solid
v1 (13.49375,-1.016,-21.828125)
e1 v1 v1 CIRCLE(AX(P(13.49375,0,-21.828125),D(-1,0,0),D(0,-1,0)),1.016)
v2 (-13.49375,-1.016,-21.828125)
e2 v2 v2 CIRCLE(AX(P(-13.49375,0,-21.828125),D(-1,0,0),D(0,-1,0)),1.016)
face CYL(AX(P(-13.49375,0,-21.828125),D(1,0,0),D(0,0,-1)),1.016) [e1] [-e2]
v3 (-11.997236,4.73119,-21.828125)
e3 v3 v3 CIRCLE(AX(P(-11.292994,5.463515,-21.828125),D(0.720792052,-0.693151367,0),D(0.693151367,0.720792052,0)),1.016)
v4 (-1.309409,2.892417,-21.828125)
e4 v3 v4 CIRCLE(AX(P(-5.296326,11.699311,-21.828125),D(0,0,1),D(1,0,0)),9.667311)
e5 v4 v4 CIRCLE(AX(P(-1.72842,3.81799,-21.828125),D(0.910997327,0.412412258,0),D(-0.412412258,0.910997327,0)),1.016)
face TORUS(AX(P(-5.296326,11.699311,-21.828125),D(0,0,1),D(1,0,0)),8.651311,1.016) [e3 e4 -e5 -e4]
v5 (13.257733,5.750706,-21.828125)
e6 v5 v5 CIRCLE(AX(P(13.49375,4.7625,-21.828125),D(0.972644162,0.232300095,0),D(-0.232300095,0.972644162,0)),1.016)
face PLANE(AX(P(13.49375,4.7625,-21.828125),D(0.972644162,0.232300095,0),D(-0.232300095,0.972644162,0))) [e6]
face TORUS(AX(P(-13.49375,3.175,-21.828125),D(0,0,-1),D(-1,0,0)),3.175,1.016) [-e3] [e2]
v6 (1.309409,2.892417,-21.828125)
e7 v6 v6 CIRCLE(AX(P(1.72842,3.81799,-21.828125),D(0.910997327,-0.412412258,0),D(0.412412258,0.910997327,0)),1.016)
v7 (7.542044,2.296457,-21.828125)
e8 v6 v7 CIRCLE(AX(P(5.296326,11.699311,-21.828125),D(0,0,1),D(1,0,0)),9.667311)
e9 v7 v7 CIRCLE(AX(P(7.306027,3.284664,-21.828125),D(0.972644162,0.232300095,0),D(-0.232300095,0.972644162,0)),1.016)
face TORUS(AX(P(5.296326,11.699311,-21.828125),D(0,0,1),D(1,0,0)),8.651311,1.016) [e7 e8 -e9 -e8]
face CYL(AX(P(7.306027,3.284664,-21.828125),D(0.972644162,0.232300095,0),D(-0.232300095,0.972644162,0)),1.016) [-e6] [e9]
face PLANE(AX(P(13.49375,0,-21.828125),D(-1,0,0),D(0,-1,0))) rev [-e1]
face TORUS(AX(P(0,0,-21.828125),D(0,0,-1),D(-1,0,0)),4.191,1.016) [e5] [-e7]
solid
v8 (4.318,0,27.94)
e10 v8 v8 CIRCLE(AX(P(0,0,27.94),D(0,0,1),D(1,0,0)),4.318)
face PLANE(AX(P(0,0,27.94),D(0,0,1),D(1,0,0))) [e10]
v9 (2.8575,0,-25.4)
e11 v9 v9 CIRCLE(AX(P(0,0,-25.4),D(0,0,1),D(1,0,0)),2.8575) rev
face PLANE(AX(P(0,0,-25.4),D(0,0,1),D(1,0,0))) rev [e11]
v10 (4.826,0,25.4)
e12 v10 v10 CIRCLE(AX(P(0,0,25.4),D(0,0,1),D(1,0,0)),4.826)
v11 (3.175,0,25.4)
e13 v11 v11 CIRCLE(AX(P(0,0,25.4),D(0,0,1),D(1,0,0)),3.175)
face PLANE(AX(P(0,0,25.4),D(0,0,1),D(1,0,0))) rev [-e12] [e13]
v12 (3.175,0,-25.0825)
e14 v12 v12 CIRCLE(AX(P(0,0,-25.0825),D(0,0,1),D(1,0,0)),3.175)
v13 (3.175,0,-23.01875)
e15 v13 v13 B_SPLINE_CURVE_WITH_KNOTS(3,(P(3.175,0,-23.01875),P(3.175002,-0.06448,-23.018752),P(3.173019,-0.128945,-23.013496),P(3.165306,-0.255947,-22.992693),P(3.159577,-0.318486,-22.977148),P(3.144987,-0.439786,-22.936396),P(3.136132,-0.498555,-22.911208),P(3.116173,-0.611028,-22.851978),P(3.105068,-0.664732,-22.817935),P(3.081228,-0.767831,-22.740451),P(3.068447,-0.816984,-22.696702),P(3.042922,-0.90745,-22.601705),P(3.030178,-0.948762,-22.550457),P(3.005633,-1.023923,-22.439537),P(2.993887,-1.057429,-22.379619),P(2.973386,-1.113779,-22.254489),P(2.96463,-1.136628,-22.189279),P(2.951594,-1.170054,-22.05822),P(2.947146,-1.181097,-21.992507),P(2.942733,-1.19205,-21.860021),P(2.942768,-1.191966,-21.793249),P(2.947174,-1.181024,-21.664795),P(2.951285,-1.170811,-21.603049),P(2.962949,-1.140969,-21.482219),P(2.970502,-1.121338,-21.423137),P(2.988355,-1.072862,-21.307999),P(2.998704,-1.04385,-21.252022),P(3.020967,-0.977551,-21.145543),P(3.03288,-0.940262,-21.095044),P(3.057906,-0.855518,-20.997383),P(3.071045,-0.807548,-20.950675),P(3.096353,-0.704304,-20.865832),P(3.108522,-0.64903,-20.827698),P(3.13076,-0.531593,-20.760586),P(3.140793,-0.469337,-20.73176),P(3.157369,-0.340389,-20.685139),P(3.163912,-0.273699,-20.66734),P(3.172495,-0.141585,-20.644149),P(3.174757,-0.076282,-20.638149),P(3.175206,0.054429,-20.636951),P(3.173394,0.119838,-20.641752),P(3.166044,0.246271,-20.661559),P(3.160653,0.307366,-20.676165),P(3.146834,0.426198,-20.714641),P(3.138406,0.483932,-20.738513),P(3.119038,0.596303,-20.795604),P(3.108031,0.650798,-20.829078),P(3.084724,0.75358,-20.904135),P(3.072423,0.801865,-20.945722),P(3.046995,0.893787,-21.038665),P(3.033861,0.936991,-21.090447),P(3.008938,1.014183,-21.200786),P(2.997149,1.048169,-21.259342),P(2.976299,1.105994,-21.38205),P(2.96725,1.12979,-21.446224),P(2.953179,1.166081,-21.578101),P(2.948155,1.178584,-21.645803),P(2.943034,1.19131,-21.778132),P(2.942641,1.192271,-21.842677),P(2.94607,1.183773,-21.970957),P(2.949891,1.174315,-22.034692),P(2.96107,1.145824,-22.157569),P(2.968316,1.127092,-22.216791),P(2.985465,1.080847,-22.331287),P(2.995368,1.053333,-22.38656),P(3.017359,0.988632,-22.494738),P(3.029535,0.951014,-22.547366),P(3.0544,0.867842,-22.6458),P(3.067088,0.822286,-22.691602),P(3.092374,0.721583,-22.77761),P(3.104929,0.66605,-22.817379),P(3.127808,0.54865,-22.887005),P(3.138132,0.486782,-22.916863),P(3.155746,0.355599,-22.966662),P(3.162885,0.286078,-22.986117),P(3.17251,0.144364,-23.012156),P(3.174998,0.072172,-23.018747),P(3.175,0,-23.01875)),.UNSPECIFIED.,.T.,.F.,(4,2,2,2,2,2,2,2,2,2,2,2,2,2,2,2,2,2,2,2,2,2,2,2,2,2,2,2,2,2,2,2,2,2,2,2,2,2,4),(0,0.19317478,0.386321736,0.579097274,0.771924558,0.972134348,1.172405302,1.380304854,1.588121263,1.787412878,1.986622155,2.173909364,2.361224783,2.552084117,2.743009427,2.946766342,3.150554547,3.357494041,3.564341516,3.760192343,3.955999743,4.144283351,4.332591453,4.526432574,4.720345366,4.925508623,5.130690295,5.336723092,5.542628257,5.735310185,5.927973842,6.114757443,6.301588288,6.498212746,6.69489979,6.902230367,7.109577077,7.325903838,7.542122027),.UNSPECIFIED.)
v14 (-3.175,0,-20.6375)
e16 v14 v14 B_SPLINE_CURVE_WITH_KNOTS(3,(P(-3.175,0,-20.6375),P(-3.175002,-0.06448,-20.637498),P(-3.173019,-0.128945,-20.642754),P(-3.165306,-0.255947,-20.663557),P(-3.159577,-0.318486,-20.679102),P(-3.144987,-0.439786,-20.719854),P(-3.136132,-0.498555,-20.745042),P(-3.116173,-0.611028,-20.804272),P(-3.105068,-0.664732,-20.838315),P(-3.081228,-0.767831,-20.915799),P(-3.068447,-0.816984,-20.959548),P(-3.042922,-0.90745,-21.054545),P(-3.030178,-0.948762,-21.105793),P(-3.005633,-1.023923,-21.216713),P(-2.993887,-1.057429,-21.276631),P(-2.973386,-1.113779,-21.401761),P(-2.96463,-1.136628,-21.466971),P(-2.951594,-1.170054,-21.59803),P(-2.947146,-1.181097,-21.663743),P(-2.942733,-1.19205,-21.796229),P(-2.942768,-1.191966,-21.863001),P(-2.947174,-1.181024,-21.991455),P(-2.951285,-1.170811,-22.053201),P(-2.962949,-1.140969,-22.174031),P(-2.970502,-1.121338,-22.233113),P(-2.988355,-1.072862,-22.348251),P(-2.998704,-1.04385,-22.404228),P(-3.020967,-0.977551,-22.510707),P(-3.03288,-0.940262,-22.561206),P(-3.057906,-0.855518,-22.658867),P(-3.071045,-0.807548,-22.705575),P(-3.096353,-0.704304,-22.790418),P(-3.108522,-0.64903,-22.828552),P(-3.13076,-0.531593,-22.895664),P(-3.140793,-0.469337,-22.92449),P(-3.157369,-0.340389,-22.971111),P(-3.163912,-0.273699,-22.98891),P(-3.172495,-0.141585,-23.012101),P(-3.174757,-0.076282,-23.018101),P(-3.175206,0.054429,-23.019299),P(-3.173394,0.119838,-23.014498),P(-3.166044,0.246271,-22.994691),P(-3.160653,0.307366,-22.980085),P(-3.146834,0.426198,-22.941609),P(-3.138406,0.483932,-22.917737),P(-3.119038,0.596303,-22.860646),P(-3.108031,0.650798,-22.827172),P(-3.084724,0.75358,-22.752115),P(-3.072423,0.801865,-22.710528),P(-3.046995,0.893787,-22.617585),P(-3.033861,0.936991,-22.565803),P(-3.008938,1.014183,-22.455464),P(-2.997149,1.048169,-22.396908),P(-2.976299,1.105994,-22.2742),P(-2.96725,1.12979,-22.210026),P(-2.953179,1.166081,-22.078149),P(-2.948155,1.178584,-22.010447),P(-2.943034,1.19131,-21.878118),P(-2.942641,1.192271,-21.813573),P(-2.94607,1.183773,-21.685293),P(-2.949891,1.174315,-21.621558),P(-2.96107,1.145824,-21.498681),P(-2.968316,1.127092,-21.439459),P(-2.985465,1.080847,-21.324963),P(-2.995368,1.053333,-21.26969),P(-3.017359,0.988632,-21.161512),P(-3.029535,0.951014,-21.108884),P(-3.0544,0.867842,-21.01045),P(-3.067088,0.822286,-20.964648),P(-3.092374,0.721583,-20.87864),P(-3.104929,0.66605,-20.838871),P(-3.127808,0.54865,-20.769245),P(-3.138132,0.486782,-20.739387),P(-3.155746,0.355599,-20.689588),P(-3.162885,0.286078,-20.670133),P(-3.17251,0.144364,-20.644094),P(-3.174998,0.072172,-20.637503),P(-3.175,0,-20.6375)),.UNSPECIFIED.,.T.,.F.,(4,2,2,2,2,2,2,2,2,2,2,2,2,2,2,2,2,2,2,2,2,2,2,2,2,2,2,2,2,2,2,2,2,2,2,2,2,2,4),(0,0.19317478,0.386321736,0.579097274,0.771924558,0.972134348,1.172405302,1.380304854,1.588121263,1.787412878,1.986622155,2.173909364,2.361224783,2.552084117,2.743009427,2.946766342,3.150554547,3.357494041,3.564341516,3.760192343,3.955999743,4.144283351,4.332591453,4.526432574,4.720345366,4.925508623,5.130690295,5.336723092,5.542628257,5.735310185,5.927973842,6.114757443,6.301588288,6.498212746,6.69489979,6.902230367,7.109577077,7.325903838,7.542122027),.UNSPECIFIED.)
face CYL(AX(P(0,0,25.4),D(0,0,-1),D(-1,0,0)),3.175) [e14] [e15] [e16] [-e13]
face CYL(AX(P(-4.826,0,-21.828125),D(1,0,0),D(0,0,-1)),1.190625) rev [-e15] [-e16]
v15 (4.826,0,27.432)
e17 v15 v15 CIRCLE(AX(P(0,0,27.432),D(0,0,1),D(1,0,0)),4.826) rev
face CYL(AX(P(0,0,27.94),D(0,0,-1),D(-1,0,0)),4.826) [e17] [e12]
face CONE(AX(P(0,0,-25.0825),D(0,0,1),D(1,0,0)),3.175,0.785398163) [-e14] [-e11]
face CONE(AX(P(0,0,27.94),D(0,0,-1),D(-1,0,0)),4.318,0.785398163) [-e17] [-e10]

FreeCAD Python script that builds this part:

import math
import FreeCAD as App
import Part
import Sketcher
Q = App.Units.Quantity


def edges_at(feature, points):
    """Names of the edges that pass closest to the given points."""
    edges = feature.Shape.Edges
    near = lambda p: min(range(len(edges)), key=lambda i: edges[i].distToShape(Part.Vertex(*p))[0])
    return sorted({f"Edge{near(p) + 1}" for p in points})

doc = App.newDocument("Part")
body = doc.addObject("PartDesign::Body", "Body")

# Sketch on XY plane
sketch1 = body.newObject("Sketcher::SketchObject", "Sketch")
sketch1.AttachmentSupport = (doc.getObject("XY_Plane"), [""])
sketch1.MapMode = "FlatFace"
sketch1.addGeometry(Part.Circle(App.Vector(0, 0, 0), App.Vector(0, 0, 1), 3.2), False)
sketch1.addConstraint(Sketcher.Constraint("Coincident", 0, 3, -1, 1))
sketch1.addConstraint(Sketcher.Constraint("Diameter", 0, Q("0.25 in")))
pad1 = body.newObject("PartDesign::Pad", "Pad")
pad1.Profile = sketch1
pad1.Length = Q("2 in")
pad1.Midplane = True

# Sketch on XY plane
sketch2 = body.newObject("Sketcher::SketchObject", "Sketch001")
sketch2.AttachmentSupport = (doc.getObject("XY_Plane"), [""])
sketch2.MapMode = "FlatFace"
sketch2.AttachmentOffset = App.Placement(App.Vector(0, 0, 1 * 25.4), App.Rotation())
sketch2.addGeometry(Part.Circle(App.Vector(0, 0, 0), App.Vector(0, 0, 1), 4.8), False)
sketch2.addConstraint(Sketcher.Constraint("Coincident", 0, 3, -1, 1))
sketch2.addConstraint(Sketcher.Constraint("Diameter", 0, Q("0.38 in")))
pad2 = body.newObject("PartDesign::Pad", "Pad001")
pad2.Profile = sketch2
pad2.Length = Q("0.1 in")
doc.recompute()

chamfer = body.newObject("PartDesign::Chamfer", "Chamfer")
chamfer.Base = (pad2, edges_at(pad2, [(-4.826, 0, 27.94)]))
chamfer.Size = Q("0.02 in")

# Sketch on YZ plane
sketch3 = body.newObject("Sketcher::SketchObject", "Sketch002")
sketch3.AttachmentSupport = (doc.getObject("YZ_Plane"), [""])
sketch3.MapMode = "FlatFace"
sketch3.addGeometry(Part.Circle(App.Vector(0, -21.8, 0), App.Vector(0, 0, 1), 1.2), False)
sketch3.addConstraint(Sketcher.Constraint("PointOnObject", 0, 3, -2))
sketch3.addConstraint(Sketcher.Constraint("Diameter", 0, Q("0.09375 in")))
sketch3.addConstraint(Sketcher.Constraint("DistanceY", 0, 3, -1, 1, Q("0.859375 in")))
pocket1 = body.newObject("PartDesign::Pocket", "Pocket")
pocket1.Profile = sketch3
pocket1.Type = "ThroughAll"
pocket1.Midplane = True
doc.recompute()

chamfer2 = body.newObject("PartDesign::Chamfer", "Chamfer001")
chamfer2.Base = (pocket1, edges_at(pocket1, [(-3.175, 0, -25.4)]))
chamfer2.Size = Q("0.0125 in")
body2 = doc.addObject("PartDesign::Body", "Body001")

# Sketch on YZ plane
sketch4 = body2.newObject("Sketcher::SketchObject", "Sketch003")
sketch4.AttachmentSupport = (doc.getObject("YZ_Plane001"), [""])
sketch4.MapMode = "FlatFace"
sketch4.AttachmentOffset = App.Placement(App.Vector(0, 0, 0.53125 * 25.4), App.Rotation())
sketch4.addGeometry(Part.Circle(App.Vector(0, -21.8, 0), App.Vector(0, 0, 1), 1), False)
sketch4.addConstraint(Sketcher.Constraint("PointOnObject", 0, 3, -2))
sketch4.addConstraint(Sketcher.Constraint("Diameter", 0, Q("0.08 in")))
sketch4.addConstraint(Sketcher.Constraint("DistanceY", 0, 3, -1, 1, Q("0.859375 in")))

# Sketch on XY plane
sketch5 = body2.newObject("Sketcher::SketchObject", "Sketch004")
sketch5.AttachmentSupport = (doc.getObject("XY_Plane001"), [""])
sketch5.MapMode = "FlatFace"
sketch5.AttachmentOffset = App.Placement(App.Vector(0, 0, -0.859375 * 25.4), App.Rotation())
sketch5.addGeometry(Part.LineSegment(App.Vector(13.5, 0, 0), App.Vector(-13.5, 0, 0)), False)
sketch5.addGeometry(Part.ArcOfCircle(Part.Circle(App.Vector(-13.5, 3.2, 0), App.Vector(0, 0, 1), 3.2), math.radians(46), math.radians(270)), False)
sketch5.addGeometry(Part.ArcOfCircle(Part.Circle(App.Vector(-5.3, 11.7, 0), App.Vector(0, 0, 1), 8.7), math.radians(-134), math.radians(-66)), False)
sketch5.addGeometry(Part.ArcOfCircle(Part.Circle(App.Vector(0, 0, 0), App.Vector(0, 0, 1), 4.2), math.radians(66), math.radians(114)), False)
sketch5.addGeometry(Part.ArcOfCircle(Part.Circle(App.Vector(5.3, 11.7, 0), App.Vector(0, 0, 1), 8.7), math.radians(-114), math.radians(-77)), False)
sketch5.addGeometry(Part.LineSegment(App.Vector(7.3, 3.3, 0), App.Vector(13.5, 4.8, 0)), False)
sketch5.addConstraint(Sketcher.Constraint("Tangent", 0, 2, 1, 2))
sketch5.addConstraint(Sketcher.Constraint("Tangent", 1, 1, 2, 1))
sketch5.addConstraint(Sketcher.Constraint("Tangent", 2, 2, 3, 2))
sketch5.addConstraint(Sketcher.Constraint("Tangent", 3, 1, 4, 1))
sketch5.addConstraint(Sketcher.Constraint("Tangent", 4, 2, 5, 1))
sketch5.addConstraint(Sketcher.Constraint("Horizontal", 0))
sketch5.addConstraint(Sketcher.Constraint("Coincident", 3, 3, -1, 1))
sketch5.addConstraint(Sketcher.Constraint("Equal", 2, 4))
sketch5.addConstraint(Sketcher.Constraint("Symmetric", 0, 1, 0, 2, -1, 1))
sketch5.addConstraint(Sketcher.Constraint("Horizontal", 2, 3, 4, 3))
sketch5.addConstraint(Sketcher.Constraint("Vertical", 0, 1, 5, 2))
sketch5.addConstraint(Sketcher.Constraint("Radius", 1, Q("0.125 in")))
sketch5.addConstraint(Sketcher.Constraint("Radius", 3, Q("0.165 in")))
sketch5.addConstraint(Sketcher.Constraint("DistanceX", 0, 2, 0, 1, Q("1.0625 in")))
sketch5.addConstraint(Sketcher.Constraint("DistanceY", -1, 1, 5, 2, Q("0.1875 in")))
sketch5.addConstraint(Sketcher.Constraint("Radius", 2, 8.651311))
doc.recompute()

additivepipe = body2.newObject("PartDesign::AdditivePipe", "AdditivePipe")
additivepipe.Profile = sketch4
additivepipe.Spine = (sketch5, ["Edge1", "Edge2", "Edge3", "Edge4", "Edge5", "Edge6"])

doc.recompute()
